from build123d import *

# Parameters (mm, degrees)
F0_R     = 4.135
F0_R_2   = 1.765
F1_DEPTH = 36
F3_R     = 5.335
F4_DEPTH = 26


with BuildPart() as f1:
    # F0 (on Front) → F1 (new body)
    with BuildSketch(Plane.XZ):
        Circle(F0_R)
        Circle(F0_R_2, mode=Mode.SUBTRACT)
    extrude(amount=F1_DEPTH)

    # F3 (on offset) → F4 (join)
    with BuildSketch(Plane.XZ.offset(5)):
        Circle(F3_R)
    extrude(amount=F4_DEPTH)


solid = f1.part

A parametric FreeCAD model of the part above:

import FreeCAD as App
import Part
import Sketcher

doc = App.newDocument("Part")
body = doc.addObject("PartDesign::Body", "Body")

# Sketch on XZ plane
sketch1 = body.newObject("Sketcher::SketchObject", "Sketch")
sketch1.AttachmentSupport = (doc.getObject("XZ_Plane"), [""])
sketch1.MapMode = "FlatFace"
sketch1.addGeometry(Part.Circle(App.Vector(0, 0, 0), App.Vector(0, 0, 1), 4.135), False)
sketch1.addGeometry(Part.Circle(App.Vector(0, 0, 0), App.Vector(0, 0, 1), 1.765), False)
sketch1.addConstraint(Sketcher.Constraint("Coincident", 0, 3, -1, 1))
sketch1.addConstraint(Sketcher.Constraint("Coincident", 1, 3, -1, 1))
sketch1.addConstraint(Sketcher.Constraint("Diameter", 0, 8.27))
sketch1.addConstraint(Sketcher.Constraint("Diameter", 1, 3.53))
pad1 = body.newObject("PartDesign::Pad", "Pad")
pad1.Profile = sketch1
pad1.Length = 36

# Sketch on XZ plane
sketch2 = body.newObject("Sketcher::SketchObject", "Sketch001")
sketch2.AttachmentSupport = (doc.getObject("XZ_Plane"), [""])
sketch2.MapMode = "FlatFace"
sketch2.AttachmentOffset = App.Placement(App.Vector(0, 0, 5), App.Rotation())
sketch2.addGeometry(Part.Circle(App.Vector(0, 0, 0), App.Vector(0, 0, 1), 5.335), False)
sketch2.addConstraint(Sketcher.Constraint("Coincident", 0, 3, -1, 1))
sketch2.addConstraint(Sketcher.Constraint("Diameter", 0, 10.67))
pad2 = body.newObject("PartDesign::Pad", "Pad001")
pad2.Profile = sketch2
pad2.Length = 26

doc.recompute()
